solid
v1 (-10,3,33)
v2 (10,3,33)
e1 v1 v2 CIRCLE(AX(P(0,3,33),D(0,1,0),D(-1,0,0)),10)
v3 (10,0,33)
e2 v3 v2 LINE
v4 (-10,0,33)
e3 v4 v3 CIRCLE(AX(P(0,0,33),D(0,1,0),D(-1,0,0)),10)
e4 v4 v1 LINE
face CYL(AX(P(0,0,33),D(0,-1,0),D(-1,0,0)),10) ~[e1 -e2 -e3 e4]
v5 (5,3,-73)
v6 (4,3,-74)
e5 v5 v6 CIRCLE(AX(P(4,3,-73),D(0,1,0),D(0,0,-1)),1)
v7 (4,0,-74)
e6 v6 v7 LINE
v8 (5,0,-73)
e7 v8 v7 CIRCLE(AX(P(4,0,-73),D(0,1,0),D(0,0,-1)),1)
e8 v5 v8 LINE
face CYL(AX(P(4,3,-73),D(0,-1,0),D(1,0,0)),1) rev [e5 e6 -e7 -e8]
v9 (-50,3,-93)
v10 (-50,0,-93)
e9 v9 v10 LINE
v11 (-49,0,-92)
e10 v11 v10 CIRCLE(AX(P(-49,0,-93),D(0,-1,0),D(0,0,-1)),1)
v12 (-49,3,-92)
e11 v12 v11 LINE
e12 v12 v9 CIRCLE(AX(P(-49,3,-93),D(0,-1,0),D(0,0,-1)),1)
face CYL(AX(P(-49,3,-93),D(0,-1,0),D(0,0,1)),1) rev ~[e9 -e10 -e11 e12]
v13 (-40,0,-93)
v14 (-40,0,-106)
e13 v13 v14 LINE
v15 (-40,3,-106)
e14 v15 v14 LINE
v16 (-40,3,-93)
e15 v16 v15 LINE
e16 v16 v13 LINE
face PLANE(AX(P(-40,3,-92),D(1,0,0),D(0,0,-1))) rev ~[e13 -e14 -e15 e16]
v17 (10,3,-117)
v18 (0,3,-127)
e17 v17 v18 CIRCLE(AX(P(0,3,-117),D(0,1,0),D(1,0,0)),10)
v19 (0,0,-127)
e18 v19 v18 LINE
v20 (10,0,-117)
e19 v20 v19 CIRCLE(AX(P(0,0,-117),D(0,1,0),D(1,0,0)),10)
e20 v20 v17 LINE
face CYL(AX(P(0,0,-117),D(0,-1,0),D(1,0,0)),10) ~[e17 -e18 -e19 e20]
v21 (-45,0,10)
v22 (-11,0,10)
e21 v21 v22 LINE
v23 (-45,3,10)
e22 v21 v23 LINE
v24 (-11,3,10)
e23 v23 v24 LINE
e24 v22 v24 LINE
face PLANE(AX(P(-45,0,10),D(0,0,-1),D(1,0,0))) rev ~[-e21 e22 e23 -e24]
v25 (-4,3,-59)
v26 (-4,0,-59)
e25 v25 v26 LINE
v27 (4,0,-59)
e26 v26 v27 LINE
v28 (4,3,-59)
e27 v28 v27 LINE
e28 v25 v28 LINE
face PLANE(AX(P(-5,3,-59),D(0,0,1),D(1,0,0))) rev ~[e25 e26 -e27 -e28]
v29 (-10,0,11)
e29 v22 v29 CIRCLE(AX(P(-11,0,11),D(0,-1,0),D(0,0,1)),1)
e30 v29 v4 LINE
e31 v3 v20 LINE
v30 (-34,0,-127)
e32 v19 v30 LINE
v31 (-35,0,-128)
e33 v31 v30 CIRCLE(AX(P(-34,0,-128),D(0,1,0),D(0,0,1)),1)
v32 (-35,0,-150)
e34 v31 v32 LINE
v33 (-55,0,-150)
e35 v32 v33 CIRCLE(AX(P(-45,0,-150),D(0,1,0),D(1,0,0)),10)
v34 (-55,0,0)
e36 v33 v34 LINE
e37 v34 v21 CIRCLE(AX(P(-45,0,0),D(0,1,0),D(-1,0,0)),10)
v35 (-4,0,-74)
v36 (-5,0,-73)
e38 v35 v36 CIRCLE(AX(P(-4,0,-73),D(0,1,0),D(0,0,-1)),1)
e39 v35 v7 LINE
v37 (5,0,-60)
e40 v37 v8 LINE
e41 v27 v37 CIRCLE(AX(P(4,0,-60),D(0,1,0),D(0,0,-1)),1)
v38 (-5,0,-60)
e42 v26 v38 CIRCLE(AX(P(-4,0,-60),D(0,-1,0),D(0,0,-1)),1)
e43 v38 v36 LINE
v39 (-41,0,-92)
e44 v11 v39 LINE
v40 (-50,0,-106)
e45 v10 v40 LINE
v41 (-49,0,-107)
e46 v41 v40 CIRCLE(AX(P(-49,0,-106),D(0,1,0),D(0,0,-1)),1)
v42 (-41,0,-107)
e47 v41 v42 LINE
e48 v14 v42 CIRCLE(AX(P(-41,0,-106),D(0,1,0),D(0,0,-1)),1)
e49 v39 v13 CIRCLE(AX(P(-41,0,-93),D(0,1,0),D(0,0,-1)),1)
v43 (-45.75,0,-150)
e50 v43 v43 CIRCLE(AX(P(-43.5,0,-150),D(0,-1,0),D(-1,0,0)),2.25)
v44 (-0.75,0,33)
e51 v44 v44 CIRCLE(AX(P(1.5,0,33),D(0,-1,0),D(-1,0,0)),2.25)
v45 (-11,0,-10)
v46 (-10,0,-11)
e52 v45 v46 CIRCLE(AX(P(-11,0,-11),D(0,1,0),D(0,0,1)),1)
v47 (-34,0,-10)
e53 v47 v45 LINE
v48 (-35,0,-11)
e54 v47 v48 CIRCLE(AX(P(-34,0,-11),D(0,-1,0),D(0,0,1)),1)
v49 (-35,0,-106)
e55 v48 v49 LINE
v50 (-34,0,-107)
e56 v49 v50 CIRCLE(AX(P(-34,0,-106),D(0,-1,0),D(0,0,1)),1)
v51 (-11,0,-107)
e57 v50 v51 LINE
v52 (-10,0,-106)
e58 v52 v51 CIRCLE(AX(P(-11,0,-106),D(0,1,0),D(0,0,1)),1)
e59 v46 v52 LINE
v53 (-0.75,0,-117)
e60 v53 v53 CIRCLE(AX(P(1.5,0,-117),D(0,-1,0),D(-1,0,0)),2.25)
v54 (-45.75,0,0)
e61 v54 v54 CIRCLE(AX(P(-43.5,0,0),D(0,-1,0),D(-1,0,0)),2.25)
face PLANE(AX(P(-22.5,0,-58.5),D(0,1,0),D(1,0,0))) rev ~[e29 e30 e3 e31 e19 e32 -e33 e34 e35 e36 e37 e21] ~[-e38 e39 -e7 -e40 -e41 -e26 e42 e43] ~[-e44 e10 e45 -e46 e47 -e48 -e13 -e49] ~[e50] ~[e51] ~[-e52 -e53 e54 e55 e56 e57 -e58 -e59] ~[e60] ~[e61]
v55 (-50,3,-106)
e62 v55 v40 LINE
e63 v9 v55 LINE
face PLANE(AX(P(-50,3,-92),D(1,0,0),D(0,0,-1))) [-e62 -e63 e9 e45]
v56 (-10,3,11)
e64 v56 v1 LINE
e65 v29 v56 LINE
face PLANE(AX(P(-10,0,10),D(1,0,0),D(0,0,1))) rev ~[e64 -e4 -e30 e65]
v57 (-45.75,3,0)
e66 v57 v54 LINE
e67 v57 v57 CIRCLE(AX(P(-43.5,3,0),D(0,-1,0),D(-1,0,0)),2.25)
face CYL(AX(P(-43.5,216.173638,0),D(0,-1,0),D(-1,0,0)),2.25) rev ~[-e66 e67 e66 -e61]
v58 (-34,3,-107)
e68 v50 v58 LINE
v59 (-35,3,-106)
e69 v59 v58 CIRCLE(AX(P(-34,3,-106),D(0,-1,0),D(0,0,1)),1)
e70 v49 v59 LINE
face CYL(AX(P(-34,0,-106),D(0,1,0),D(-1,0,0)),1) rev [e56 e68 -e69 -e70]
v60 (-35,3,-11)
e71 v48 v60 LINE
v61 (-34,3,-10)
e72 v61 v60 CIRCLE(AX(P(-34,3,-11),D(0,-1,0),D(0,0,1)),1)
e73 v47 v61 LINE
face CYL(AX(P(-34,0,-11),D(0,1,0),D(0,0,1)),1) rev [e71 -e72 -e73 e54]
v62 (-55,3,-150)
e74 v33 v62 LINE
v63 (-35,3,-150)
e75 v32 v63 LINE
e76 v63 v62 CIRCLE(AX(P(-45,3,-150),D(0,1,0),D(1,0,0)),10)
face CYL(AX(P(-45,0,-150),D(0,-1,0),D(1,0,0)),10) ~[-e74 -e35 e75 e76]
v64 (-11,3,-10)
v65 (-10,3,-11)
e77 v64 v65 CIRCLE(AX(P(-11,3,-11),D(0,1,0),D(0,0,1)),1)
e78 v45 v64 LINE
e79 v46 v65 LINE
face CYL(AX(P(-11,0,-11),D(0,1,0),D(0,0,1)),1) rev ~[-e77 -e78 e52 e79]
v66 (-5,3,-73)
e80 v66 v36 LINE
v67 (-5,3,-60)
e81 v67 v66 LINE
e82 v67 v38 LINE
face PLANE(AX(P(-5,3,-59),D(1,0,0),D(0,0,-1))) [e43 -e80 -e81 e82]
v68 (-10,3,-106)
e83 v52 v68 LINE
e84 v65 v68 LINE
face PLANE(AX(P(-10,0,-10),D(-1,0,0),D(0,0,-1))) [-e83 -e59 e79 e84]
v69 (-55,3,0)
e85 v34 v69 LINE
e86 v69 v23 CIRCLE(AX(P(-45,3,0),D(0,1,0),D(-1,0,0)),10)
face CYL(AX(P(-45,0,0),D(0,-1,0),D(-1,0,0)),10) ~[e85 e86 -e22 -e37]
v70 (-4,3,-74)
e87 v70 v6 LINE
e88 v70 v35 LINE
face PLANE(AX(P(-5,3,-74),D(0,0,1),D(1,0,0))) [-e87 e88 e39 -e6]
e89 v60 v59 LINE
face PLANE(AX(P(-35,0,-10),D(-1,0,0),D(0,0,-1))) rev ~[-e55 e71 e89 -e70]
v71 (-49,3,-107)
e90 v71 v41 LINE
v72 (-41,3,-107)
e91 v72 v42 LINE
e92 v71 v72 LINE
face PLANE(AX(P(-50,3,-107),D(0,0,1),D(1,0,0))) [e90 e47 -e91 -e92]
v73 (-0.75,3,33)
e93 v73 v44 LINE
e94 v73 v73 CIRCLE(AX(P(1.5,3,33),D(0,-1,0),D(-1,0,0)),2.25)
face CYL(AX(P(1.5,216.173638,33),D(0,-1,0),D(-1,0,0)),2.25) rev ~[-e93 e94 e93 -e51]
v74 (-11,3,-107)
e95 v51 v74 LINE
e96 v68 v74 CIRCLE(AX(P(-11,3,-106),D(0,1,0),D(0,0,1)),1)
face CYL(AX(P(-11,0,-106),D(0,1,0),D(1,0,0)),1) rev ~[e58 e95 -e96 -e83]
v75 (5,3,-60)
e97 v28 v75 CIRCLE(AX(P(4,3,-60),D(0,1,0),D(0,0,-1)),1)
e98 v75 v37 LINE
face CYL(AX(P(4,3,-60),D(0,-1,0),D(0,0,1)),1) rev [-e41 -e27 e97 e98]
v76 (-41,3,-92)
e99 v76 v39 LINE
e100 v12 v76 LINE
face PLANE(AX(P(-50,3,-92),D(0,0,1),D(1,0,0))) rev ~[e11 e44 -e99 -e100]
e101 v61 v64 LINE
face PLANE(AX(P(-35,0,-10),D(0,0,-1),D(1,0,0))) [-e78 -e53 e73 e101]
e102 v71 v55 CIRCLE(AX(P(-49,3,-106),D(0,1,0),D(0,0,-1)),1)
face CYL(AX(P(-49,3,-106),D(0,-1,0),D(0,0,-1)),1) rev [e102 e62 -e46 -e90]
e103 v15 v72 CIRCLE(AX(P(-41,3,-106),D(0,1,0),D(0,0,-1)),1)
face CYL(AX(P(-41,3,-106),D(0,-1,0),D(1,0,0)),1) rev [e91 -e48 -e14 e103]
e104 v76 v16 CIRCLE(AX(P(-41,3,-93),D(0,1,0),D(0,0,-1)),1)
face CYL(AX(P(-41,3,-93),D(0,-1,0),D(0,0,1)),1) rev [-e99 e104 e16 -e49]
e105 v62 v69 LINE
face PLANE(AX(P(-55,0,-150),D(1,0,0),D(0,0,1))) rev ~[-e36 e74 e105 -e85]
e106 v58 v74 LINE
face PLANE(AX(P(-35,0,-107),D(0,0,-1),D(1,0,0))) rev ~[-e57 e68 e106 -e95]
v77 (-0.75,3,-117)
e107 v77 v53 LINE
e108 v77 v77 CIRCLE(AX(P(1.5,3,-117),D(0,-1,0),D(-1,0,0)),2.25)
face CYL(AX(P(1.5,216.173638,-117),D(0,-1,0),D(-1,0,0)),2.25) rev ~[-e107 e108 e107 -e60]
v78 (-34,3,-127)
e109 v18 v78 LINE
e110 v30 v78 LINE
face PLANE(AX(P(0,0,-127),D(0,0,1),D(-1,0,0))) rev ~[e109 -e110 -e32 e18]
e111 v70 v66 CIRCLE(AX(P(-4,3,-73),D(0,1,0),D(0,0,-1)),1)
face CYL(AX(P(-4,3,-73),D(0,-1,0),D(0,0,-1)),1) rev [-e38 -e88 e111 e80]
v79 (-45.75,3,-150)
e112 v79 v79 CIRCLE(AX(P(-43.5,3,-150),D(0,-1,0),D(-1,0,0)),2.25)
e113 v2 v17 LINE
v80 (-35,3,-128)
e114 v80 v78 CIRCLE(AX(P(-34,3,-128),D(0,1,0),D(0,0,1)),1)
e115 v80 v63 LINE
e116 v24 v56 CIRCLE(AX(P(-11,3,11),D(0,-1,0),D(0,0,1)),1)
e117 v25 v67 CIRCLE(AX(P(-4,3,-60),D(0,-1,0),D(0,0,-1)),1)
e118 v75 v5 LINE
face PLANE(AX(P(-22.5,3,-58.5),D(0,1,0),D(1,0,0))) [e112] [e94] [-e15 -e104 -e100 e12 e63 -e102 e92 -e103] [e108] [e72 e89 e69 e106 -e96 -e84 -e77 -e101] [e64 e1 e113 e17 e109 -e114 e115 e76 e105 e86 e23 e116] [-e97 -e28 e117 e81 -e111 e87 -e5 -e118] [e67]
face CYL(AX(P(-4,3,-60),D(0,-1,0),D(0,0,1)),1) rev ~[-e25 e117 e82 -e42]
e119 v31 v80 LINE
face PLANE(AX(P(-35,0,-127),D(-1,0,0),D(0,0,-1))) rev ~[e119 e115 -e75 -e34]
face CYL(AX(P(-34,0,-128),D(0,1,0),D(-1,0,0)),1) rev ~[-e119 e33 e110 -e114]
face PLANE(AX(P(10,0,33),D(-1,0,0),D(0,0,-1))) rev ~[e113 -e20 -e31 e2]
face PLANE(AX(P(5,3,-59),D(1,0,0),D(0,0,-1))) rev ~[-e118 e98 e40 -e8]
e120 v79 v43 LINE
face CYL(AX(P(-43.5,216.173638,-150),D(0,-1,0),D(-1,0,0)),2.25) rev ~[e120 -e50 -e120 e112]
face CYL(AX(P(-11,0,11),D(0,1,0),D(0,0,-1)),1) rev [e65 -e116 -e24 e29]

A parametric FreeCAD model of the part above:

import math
import FreeCAD as App
import Part
import Sketcher
from FreeCAD import Vector
Q = App.Units.Quantity


def edges_at(feature, points):
    """Names of the edges that pass closest to the given points."""
    edges = feature.Shape.Edges
    near = lambda p: min(range(len(edges)), key=lambda i: edges[i].distToShape(Part.Vertex(*p))[0])
    return sorted({f"Edge{near(p) + 1}" for p in points})

doc = App.newDocument("Part")
body = doc.addObject("PartDesign::Body", "Body")

# Sketch on XZ plane
sketch1 = body.newObject("Sketcher::SketchObject", "Sketch")
sketch1.AttachmentSupport = (doc.getObject("XZ_Plane"), [""])
sketch1.MapMode = "FlatFace"
sketch1.addGeometry(Part.LineSegment(Vector(-45, 10, 0), Vector(-10, 10, 0)), False)
sketch1.addGeometry(Part.LineSegment(Vector(-10, 10, 0), Vector(-10, 33, 0)), False)
sketch1.addGeometry(Part.ArcOfCircle(Part.Circle(Vector(0, 33, 0), Vector(0, 0, 1), 10), math.radians(0), math.radians(180)), False)
sketch1.addGeometry(Part.LineSegment(Vector(10, 33, 0), Vector(10, -117, 0)), False)
sketch1.addGeometry(Part.ArcOfCircle(Part.Circle(Vector(0, -117, 0), Vector(0, 0, 1), 10), math.radians(-90), math.radians(0)), False)
sketch1.addGeometry(Part.LineSegment(Vector(0, -127, 0), Vector(-35, -127, 0)), False)
sketch1.addGeometry(Part.LineSegment(Vector(-35, -127, 0), Vector(-35, -150, 0)), False)
sketch1.addGeometry(Part.ArcOfCircle(Part.Circle(Vector(-45, -150, 0), Vector(0, 0, 1), 10), math.radians(180), math.radians(360)), False)
sketch1.addGeometry(Part.LineSegment(Vector(-55, -150, 0), Vector(-55, 0, 0)), False)
sketch1.addGeometry(Part.ArcOfCircle(Part.Circle(Vector(-45, 0, 0), Vector(0, 0, 1), 10), math.radians(90), math.radians(180)), False)
sketch1.addGeometry(Part.LineSegment(Vector(-10, -10, 0), Vector(-35, -10, 0)), False)
sketch1.addGeometry(Part.LineSegment(Vector(-35, -10, 0), Vector(-35, -107, 0)), False)
sketch1.addGeometry(Part.LineSegment(Vector(-35, -107, 0), Vector(-10, -107, 0)), False)
sketch1.addGeometry(Part.LineSegment(Vector(-10, -107, 0), Vector(-10, -10, 0)), False)
sketch1.addConstraint(Sketcher.Constraint("Coincident", 0, 2, 1, 1))
sketch1.addConstraint(Sketcher.Constraint("Tangent", 1, 2, 2, 2))
sketch1.addConstraint(Sketcher.Constraint("Tangent", 2, 1, 3, 1))
sketch1.addConstraint(Sketcher.Constraint("Tangent", 3, 2, 4, 2))
sketch1.addConstraint(Sketcher.Constraint("Tangent", 4, 1, 5, 1))
sketch1.addConstraint(Sketcher.Constraint("Coincident", 5, 2, 6, 1))
sketch1.addConstraint(Sketcher.Constraint("Tangent", 6, 2, 7, 2))
sketch1.addConstraint(Sketcher.Constraint("Tangent", 7, 1, 8, 1))
sketch1.addConstraint(Sketcher.Constraint("Tangent", 8, 2, 9, 2))
sketch1.addConstraint(Sketcher.Constraint("Tangent", 9, 1, 0, 1))
sketch1.addConstraint(Sketcher.Constraint("Coincident", 10, 2, 11, 1))
sketch1.addConstraint(Sketcher.Constraint("Coincident", 11, 2, 12, 1))
sketch1.addConstraint(Sketcher.Constraint("Coincident", 12, 2, 13, 1))
sketch1.addConstraint(Sketcher.Constraint("Coincident", 13, 2, 10, 1))
sketch1.addConstraint(Sketcher.Constraint("Horizontal", 0))
sketch1.addConstraint(Sketcher.Constraint("Vertical", 1))
sketch1.addConstraint(Sketcher.Constraint("Vertical", 3))
sketch1.addConstraint(Sketcher.Constraint("Horizontal", 5))
sketch1.addConstraint(Sketcher.Constraint("Vertical", 6))
sketch1.addConstraint(Sketcher.Constraint("Vertical", 8))
sketch1.addConstraint(Sketcher.Constraint("Horizontal", 10))
sketch1.addConstraint(Sketcher.Constraint("Vertical", 11))
sketch1.addConstraint(Sketcher.Constraint("Horizontal", 12))
sketch1.addConstraint(Sketcher.Constraint("Vertical", 13))
sketch1.addConstraint(Sketcher.Constraint("Equal", 2, 4))
sketch1.addConstraint(Sketcher.Constraint("Equal", 4, 7))
sketch1.addConstraint(Sketcher.Constraint("Equal", 7, 9))
sketch1.addConstraint(Sketcher.Constraint("Symmetric", 0, 2, 13, 2, -1))
sketch1.addConstraint(Sketcher.Constraint("PointOnObject", 2, 3, -2))
sketch1.addConstraint(Sketcher.Constraint("PointOnObject", 9, 3, -1))
sketch1.addConstraint(Sketcher.Constraint("Vertical", 6, 2, 10, 2))
sketch1.addConstraint(Sketcher.Constraint("Equal", 1, 6))
sketch1.addConstraint(Sketcher.Constraint("Radius", 2, Q("10 mm")))
sketch1.addConstraint(Sketcher.Constraint("DistanceX", 0, 1, 0, 2, Q("35 mm")))
sketch1.addConstraint(Sketcher.Constraint("DistanceY", 1, 1, 1, 2, Q("23 mm")))
sketch1.addConstraint(Sketcher.Constraint("DistanceY", 3, 2, 3, 1, Q("150 mm")))
sketch1.addConstraint(Sketcher.Constraint("DistanceY", 11, 2, 11, 1, Q("97 mm")))
pad1 = body.newObject("PartDesign::Pad", "Pad")
pad1.Profile = sketch1
pad1.Length = 3
pad1.Reversed = True

# Sketch on XZ plane
sketch2 = body.newObject("Sketcher::SketchObject", "Sketch001")
sketch2.AttachmentSupport = (doc.getObject("XZ_Plane"), [""])
sketch2.MapMode = "FlatFace"
sketch2.AttachmentOffset = App.Placement(Vector(0, 0, -3), App.Rotation())
sketch2.addGeometry(Part.LineSegment(Vector(-50, -107, 0), Vector(-50, -92, 0)), False)
sketch2.addGeometry(Part.LineSegment(Vector(-50, -92, 0), Vector(-40, -92, 0)), False)
sketch2.addGeometry(Part.LineSegment(Vector(-40, -92, 0), Vector(-40, -107, 0)), False)
sketch2.addGeometry(Part.LineSegment(Vector(-40, -107, 0), Vector(-50, -107, 0)), False)
sketch2.addGeometry(Part.LineSegment(Vector(-5, -74, 0), Vector(-5, -59, 0)), False)
sketch2.addGeometry(Part.LineSegment(Vector(-5, -59, 0), Vector(5, -59, 0)), False)
sketch2.addGeometry(Part.LineSegment(Vector(5, -59, 0), Vector(5, -74, 0)), False)
sketch2.addGeometry(Part.LineSegment(Vector(5, -74, 0), Vector(-5, -74, 0)), False)
sketch2.addConstraint(Sketcher.Constraint("Coincident", 0, 2, 1, 1))
sketch2.addConstraint(Sketcher.Constraint("Coincident", 1, 2, 2, 1))
sketch2.addConstraint(Sketcher.Constraint("Coincident", 2, 2, 3, 1))
sketch2.addConstraint(Sketcher.Constraint("Coincident", 3, 2, 0, 1))
sketch2.addConstraint(Sketcher.Constraint("Coincident", 4, 2, 5, 1))
sketch2.addConstraint(Sketcher.Constraint("Coincident", 5, 2, 6, 1))
sketch2.addConstraint(Sketcher.Constraint("Coincident", 6, 2, 7, 1))
sketch2.addConstraint(Sketcher.Constraint("Coincident", 7, 2, 4, 1))
sketch2.addConstraint(Sketcher.Constraint("Vertical", 0))
sketch2.addConstraint(Sketcher.Constraint("Horizontal", 1))
sketch2.addConstraint(Sketcher.Constraint("Vertical", 2))
sketch2.addConstraint(Sketcher.Constraint("Horizontal", 3))
sketch2.addConstraint(Sketcher.Constraint("Vertical", 4))
sketch2.addConstraint(Sketcher.Constraint("Horizontal", 5))
sketch2.addConstraint(Sketcher.Constraint("Vertical", 6))
sketch2.addConstraint(Sketcher.Constraint("Horizontal", 7))
sketch2.addConstraint(Sketcher.Constraint("Equal", 3, 5))
sketch2.addConstraint(Sketcher.Constraint("Equal", 2, 4))
sketch2.addConstraint(Sketcher.Constraint("DistanceX", 1, 1, 1, 2, Q("10 mm")))
sketch2.addConstraint(Sketcher.Constraint("DistanceY", 0, 1, 0, 2, Q("15 mm")))
sketch2.addConstraint(Sketcher.Constraint("DistanceX", 0, 2, -1, 1, Q("50 mm")))
sketch2.addConstraint(Sketcher.Constraint("DistanceY", 0, 2, -1, 1, Q("92 mm")))
sketch2.addConstraint(Sketcher.Constraint("DistanceX", 4, 2, -1, 1, Q("5 mm")))
sketch2.addConstraint(Sketcher.Constraint("DistanceY", 4, 2, -1, 1, Q("59 mm")))
pocket1 = body.newObject("PartDesign::Pocket", "Pocket")
pocket1.Profile = sketch2
pocket1.Type = "ThroughAll"
pocket1.Reversed = True
doc.recompute()

fillet = body.newObject("PartDesign::Fillet", "Fillet")
fillet.Base = (pocket1, edges_at(pocket1, [
    (-35, 1.5, -127),
    (-10, 1.5, 10),
    (-35, 1.5, -107),
    (-35, 1.5, -10),
    (-10, 1.5, -10),
    (-10, 1.5, -107),
    (-50, 1.5, -92),
    (-50, 1.5, -107),
    (-40, 1.5, -107),
    (-40, 1.5, -92),
    (-5, 1.5, -59),
    (-5, 1.5, -74),
    (5, 1.5, -74),
    (5, 1.5, -59),
]))
fillet.Radius = 1

# Sketch on XZ plane
sketch3 = body.newObject("Sketcher::SketchObject", "Sketch002")
sketch3.AttachmentSupport = (doc.getObject("XZ_Plane"), [""])
sketch3.MapMode = "FlatFace"
sketch3.AttachmentOffset = App.Placement(Vector(0, 0, -3), App.Rotation())
sketch3.addGeometry(Part.Circle(Vector(-43.5, -150, 0), Vector(0, 0, 1), 2.2), False)
sketch3.addGeometry(Part.Circle(Vector(1.5, -117, 0), Vector(0, 0, 1), 2.2), False)
sketch3.addGeometry(Part.Circle(Vector(-43.5, 0, 0), Vector(0, 0, 1), 2.2), False)
sketch3.addGeometry(Part.Circle(Vector(1.5, 33, 0), Vector(0, 0, 1), 2.2), False)
sketch3.addConstraint(Sketcher.Constraint("Equal", 0, 1))
sketch3.addConstraint(Sketcher.Constraint("Equal", 1, 2))
sketch3.addConstraint(Sketcher.Constraint("Equal", 2, 3))
sketch3.addConstraint(Sketcher.Constraint("PointOnObject", 2, 3, -1))
sketch3.addConstraint(Sketcher.Constraint("Vertical", 0, 3, 2, 3))
sketch3.addConstraint(Sketcher.Constraint("Vertical", 1, 3, 3, 3))
sketch3.addConstraint(Sketcher.Constraint("Diameter", 0, Q("4.5 mm")))
sketch3.addConstraint(Sketcher.Constraint("DistanceY", 0, 3, -1, 1, Q("150 mm")))
sketch3.addConstraint(Sketcher.Constraint("DistanceY", 1, 3, -1, 1, Q("117 mm")))
sketch3.addConstraint(Sketcher.Constraint("DistanceY", -1, 1, 3, 3, Q("33 mm")))
sketch3.addConstraint(Sketcher.Constraint("DistanceX", 0, 3, 1, 3, Q("45 mm")))
sketch3.addConstraint(Sketcher.Constraint("DistanceX", 0, 3, -1, 1, Q("43.5 mm")))
doc.recompute()
hole = body.newObject("PartDesign::Hole", "Hole")
hole.Profile = sketch3
hole.ThreadType = "None"
hole.Diameter = 4.5
hole.DepthType = "ThroughAll"
hole.Reversed = True

doc.recompute()
